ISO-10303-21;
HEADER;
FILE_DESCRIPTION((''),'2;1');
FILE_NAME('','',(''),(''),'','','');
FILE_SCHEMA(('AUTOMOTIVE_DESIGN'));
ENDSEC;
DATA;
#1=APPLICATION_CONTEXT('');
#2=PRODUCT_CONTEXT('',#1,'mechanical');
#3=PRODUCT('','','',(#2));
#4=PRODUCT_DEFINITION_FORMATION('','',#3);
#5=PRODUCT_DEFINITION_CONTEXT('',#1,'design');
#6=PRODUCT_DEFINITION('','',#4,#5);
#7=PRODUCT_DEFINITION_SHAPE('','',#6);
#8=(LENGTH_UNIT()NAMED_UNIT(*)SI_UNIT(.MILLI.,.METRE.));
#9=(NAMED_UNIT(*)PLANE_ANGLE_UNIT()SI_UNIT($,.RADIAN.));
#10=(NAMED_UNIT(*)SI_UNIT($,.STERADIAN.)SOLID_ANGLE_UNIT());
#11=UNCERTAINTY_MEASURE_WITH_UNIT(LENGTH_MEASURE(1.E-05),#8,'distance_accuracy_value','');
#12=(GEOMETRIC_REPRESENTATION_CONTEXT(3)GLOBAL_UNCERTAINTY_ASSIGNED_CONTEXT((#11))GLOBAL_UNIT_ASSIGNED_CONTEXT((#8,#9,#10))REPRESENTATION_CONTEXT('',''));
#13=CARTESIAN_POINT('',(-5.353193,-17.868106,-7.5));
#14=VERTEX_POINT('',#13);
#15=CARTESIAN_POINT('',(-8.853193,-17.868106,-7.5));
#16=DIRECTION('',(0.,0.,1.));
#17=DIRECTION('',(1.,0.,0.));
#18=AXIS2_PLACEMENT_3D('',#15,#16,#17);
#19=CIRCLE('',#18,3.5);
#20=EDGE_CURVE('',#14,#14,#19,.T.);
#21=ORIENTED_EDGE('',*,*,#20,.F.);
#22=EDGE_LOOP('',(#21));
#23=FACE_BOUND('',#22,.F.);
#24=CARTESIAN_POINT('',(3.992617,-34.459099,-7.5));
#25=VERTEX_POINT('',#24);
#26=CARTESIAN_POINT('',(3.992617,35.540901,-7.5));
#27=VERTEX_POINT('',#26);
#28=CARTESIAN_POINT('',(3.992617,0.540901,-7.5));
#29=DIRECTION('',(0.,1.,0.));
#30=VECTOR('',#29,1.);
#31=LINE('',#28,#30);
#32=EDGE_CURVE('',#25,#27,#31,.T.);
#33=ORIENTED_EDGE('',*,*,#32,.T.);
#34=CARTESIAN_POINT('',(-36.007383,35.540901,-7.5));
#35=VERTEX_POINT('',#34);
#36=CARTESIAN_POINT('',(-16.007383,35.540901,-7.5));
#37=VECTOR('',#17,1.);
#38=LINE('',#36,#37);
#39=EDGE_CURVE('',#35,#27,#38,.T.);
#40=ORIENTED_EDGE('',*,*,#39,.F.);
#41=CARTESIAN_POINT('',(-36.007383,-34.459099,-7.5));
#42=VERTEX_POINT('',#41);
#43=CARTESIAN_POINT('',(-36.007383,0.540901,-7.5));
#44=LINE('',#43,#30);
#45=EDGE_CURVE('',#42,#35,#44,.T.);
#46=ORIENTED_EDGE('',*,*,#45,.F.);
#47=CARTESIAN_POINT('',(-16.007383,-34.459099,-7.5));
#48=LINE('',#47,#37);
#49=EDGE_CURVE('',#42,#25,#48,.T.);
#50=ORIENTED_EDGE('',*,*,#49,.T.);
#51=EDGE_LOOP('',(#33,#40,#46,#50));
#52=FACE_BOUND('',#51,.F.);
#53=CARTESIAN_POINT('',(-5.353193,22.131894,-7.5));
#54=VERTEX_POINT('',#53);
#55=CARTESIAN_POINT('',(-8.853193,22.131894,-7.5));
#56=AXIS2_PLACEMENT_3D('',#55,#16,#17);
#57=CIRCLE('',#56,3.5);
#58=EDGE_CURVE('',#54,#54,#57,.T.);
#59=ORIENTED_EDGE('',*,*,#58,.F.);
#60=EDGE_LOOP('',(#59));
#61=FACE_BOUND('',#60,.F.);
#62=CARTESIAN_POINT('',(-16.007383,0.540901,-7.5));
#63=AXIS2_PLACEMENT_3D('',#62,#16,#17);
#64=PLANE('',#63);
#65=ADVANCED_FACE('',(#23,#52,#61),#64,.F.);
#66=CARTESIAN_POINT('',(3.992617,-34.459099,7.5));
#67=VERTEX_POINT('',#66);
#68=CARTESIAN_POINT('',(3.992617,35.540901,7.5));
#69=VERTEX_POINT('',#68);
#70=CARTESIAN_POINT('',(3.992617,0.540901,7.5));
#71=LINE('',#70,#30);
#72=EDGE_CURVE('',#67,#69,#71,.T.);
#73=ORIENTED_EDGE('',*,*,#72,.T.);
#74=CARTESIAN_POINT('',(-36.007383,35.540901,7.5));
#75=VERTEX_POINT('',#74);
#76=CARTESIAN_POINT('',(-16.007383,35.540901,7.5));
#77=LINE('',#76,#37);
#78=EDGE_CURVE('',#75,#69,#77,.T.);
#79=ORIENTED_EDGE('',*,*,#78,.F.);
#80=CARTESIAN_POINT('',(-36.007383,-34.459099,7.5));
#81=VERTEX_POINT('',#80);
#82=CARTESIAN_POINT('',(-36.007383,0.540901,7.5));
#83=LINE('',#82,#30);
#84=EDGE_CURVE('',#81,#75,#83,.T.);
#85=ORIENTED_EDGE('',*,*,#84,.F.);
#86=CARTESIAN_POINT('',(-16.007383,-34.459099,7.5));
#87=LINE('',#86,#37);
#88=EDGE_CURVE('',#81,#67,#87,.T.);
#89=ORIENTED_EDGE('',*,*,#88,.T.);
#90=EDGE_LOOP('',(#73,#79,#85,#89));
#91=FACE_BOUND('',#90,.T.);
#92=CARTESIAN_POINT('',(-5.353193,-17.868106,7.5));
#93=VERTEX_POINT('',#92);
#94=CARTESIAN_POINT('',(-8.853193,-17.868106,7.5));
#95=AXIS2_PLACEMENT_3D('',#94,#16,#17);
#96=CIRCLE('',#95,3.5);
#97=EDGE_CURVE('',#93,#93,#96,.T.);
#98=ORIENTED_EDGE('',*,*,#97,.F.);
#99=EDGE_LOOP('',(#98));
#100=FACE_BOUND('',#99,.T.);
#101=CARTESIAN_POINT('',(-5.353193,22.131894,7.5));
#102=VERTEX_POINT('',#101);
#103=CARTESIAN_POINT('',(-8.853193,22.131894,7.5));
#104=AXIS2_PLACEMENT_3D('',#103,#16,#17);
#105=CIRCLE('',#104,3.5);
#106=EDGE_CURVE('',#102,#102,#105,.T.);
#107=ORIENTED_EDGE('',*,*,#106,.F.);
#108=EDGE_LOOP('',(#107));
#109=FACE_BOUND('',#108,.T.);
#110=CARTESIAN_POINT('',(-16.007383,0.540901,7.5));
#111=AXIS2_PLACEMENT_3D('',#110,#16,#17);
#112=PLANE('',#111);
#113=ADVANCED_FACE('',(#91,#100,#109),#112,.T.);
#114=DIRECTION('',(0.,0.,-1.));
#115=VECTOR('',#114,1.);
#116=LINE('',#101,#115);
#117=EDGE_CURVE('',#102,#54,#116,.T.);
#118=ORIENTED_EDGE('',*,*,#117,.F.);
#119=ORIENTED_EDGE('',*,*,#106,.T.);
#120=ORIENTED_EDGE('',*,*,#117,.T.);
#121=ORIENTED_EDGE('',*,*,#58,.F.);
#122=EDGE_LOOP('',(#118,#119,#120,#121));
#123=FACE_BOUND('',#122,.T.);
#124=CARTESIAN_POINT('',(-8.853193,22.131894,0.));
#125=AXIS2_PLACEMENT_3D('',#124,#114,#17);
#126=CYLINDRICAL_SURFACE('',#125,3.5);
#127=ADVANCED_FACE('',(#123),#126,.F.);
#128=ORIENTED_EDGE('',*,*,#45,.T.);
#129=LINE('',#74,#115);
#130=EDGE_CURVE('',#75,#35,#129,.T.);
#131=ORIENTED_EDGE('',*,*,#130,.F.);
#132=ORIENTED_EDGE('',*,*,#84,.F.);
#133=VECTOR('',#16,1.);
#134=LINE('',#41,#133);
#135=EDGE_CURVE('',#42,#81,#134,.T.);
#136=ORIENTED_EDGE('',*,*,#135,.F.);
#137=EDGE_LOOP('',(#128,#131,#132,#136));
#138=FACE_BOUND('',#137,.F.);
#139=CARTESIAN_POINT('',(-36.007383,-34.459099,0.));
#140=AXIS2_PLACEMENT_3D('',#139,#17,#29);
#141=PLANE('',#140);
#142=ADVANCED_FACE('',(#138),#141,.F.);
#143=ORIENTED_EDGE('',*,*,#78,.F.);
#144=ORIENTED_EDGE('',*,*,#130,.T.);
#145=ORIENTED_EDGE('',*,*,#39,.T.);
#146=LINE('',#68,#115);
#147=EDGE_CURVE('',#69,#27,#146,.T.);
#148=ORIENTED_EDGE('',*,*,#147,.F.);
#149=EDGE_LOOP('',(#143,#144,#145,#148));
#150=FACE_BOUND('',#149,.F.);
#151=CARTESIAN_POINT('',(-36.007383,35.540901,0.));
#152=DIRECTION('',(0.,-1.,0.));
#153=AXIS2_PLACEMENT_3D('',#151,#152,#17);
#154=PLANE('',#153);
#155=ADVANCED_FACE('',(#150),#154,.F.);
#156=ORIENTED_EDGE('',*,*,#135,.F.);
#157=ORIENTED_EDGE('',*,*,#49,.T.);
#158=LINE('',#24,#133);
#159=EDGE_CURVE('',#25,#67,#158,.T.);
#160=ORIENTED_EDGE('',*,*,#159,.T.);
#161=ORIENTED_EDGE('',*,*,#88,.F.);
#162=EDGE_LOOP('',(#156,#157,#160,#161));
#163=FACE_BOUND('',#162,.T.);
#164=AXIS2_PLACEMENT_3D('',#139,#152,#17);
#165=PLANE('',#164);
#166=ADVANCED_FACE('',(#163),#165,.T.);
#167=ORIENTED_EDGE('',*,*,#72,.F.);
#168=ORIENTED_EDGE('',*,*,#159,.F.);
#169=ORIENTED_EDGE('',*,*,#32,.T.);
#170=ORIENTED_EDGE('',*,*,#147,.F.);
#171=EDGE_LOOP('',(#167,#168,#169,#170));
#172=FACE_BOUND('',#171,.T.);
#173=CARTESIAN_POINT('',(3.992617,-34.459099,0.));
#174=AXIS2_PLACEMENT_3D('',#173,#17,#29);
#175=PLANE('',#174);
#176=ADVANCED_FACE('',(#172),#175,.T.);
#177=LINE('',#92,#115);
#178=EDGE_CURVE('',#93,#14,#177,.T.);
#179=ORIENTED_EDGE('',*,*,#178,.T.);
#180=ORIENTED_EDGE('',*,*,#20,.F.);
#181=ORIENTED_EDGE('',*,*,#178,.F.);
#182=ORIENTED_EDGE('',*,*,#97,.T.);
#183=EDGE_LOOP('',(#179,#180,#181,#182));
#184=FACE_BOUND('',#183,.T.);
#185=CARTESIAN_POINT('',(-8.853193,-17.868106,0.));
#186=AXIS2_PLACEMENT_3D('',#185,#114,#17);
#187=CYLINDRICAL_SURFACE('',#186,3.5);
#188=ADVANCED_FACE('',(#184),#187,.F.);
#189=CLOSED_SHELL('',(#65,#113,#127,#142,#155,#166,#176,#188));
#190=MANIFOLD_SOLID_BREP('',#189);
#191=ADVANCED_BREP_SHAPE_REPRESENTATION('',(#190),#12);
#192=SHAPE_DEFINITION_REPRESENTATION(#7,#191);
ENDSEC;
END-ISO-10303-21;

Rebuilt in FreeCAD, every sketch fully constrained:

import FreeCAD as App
import Part
import Sketcher

doc = App.newDocument("Part")
body = doc.addObject("PartDesign::Body", "Body")

sketch1 = body.newObject("Sketcher::SketchObject", "Sketch")
sketch1.AttachmentSupport = (doc.getObject("XY_Plane"), [""])
sketch1.MapMode = "FlatFace"
sketch1.addGeometry([
    Part.LineSegment(App.Vector(-36.007383, 35.540901, 0), App.Vector(-36.007383, -34.459099, 0)),
    Part.LineSegment(App.Vector(-36.007383, -34.459099, 0), App.Vector(3.992617, -34.459099, 0)),
    Part.LineSegment(App.Vector(3.992617, -34.459099, 0), App.Vector(3.992617, 35.540901, 0)),
    Part.LineSegment(App.Vector(3.992617, 35.540901, 0), App.Vector(-36.007383, 35.540901, 0)),
    Part.Circle(App.Vector(-8.853193, -17.868106, 0), App.Vector(0, 0, 1), 3.5),
    Part.Circle(App.Vector(-8.853193, 22.131894, 0), App.Vector(0, 0, 1), 3.5),
], False)
sketch1.addConstraint([
    Sketcher.Constraint("Coincident", 0, 2, 1, 1),
    Sketcher.Constraint("Coincident", 1, 2, 2, 1),
    Sketcher.Constraint("Coincident", 2, 2, 3, 1),
    Sketcher.Constraint("Coincident", 3, 2, 0, 1),
    Sketcher.Constraint("Vertical", 0),
    Sketcher.Constraint("Horizontal", 1),
    Sketcher.Constraint("Vertical", 2),
    Sketcher.Constraint("Horizontal", 3),
    Sketcher.Constraint("Equal", 4, 5),
    Sketcher.Constraint("Vertical", 4, 3, 5, 3),
    Sketcher.Constraint("Diameter", 4, 7.0),
    Sketcher.Constraint("DistanceX", 1, 1, 1, 2, 40.0),
    Sketcher.Constraint("DistanceY", 0, 2, 0, 1, 70.0),
    Sketcher.Constraint("DistanceY", 4, 3, 5, 3, 40.0),
    Sketcher.Constraint("DistanceY", 0, 2, -1, 1, 34.459099),
    Sketcher.Constraint("DistanceX", 0, 2, 4, 3, 27.15419),
    Sketcher.Constraint("DistanceX", 4, 3, -1, 1, 8.853193),
    Sketcher.Constraint("DistanceY", 4, 3, -1, 1, 17.868106),
])
pad1 = body.newObject("PartDesign::Pad", "Pad")
pad1.Profile = sketch1
pad1.Length = 15
pad1.Midplane = True

doc.recompute()
